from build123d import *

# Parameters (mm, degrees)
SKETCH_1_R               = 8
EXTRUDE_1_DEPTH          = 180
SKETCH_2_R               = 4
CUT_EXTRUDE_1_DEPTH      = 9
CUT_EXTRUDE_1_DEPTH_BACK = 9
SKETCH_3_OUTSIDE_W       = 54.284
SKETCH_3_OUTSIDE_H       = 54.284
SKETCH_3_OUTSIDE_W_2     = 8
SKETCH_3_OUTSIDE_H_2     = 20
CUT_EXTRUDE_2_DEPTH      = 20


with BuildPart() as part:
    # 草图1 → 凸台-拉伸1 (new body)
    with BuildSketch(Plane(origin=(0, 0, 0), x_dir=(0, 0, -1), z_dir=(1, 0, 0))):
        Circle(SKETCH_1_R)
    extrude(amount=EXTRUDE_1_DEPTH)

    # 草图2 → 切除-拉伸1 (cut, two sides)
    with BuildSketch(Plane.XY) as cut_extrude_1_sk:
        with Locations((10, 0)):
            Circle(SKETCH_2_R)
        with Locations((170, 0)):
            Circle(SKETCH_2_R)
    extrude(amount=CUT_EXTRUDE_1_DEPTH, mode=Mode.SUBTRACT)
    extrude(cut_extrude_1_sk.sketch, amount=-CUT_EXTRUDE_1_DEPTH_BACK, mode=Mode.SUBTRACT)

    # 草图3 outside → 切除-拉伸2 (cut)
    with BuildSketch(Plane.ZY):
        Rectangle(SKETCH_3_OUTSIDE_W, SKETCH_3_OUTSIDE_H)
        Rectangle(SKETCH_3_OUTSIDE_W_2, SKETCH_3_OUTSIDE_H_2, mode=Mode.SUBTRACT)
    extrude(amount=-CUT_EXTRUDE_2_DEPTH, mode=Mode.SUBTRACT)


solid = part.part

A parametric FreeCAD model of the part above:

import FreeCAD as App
import Part
import Sketcher
from FreeCAD import Vector

doc = App.newDocument("Part")
params = doc.addObject("Spreadsheet::Sheet", "Params")
for row, (alias, value) in enumerate([
    ("sketch1_diameter", "16 mm"),
    ("pad1_length", "180 mm"),
    ("sketch2_diameter", "8 mm"),
    ("sketch3_width", "20 mm"),
    ("sketch3_height", "8 mm"),
    ("pocket2_length", "20 mm"),
], start=1):
    params.set(f"A{row}", alias)
    params.set(f"B{row}", "=" + value)
    params.setAlias(f"B{row}", alias)

body = doc.addObject("PartDesign::Body", "Body")

sketch1 = doc.addObject("Sketcher::SketchObject", "Sketch")
body.addObject(sketch1)
sketch1.AttachmentSupport = (doc.YZ_Plane, [""])
sketch1.MapMode = "FlatFace"
sketch1.addGeometry(Part.Circle(Vector(0, 0, 0), Vector(0, 0, 1), 8), False)
sketch1.addConstraint([
    Sketcher.Constraint("Coincident", 0, 3, -1, 1),
    Sketcher.Constraint("Diameter", 0, 16.0),
])
sketch1.setExpression("Constraints[1]", "Params.sketch1_diameter")
pad1 = doc.addObject("PartDesign::Pad", "Pad")
body.addObject(pad1)
pad1.Profile = sketch1
pad1.setExpression("Length", "Params.pad1_length")

sketch2 = doc.addObject("Sketcher::SketchObject", "Sketch001")
body.addObject(sketch2)
sketch2.AttachmentSupport = (doc.XY_Plane, [""])
sketch2.MapMode = "FlatFace"
sketch2.addGeometry([
    Part.Circle(Vector(10, 0, 0), Vector(0, 0, 1), 4),
    Part.Circle(Vector(170, 0, 0), Vector(0, 0, 1), 4),
], False)
sketch2.addConstraint([
    Sketcher.Constraint("Equal", 0, 1),
    Sketcher.Constraint("PointOnObject", 0, 3, -1),
    Sketcher.Constraint("PointOnObject", 1, 3, -1),
    Sketcher.Constraint("Diameter", 0, 8.0),
    Sketcher.Constraint("DistanceX", -1, 1, 0, 3, 10.0),
    Sketcher.Constraint("DistanceX", -1, 1, 1, 3, 170.0),
])
sketch2.setExpression("Constraints[3]", "Params.sketch2_diameter")
pocket1 = doc.addObject("PartDesign::Pocket", "Pocket")
body.addObject(pocket1)
pocket1.Profile = sketch2
pocket1.Type = "ThroughAll"
pocket1.Midplane = True

sketch3 = doc.addObject("Sketcher::SketchObject", "Sketch002")
body.addObject(sketch3)
sketch3.AttachmentSupport = (doc.YZ_Plane, [""])
sketch3.MapMode = "FlatFace"
sketch3.addGeometry([
    Part.LineSegment(Vector(27, -27, 0), Vector(-27, -27, 0)),
    Part.LineSegment(Vector(-27, -27, 0), Vector(-27, 27, 0)),
    Part.LineSegment(Vector(-27, 27, 0), Vector(27, 27, 0)),
    Part.LineSegment(Vector(27, 27, 0), Vector(27, -27, 0)),
    Part.LineSegment(Vector(-10, 4, 0), Vector(-10, -4, 0)),
    Part.LineSegment(Vector(-10, -4, 0), Vector(10, -4, 0)),
    Part.LineSegment(Vector(10, -4, 0), Vector(10, 4, 0)),
    Part.LineSegment(Vector(10, 4, 0), Vector(-10, 4, 0)),
], False)
sketch3.addConstraint([
    Sketcher.Constraint("Coincident", 0, 2, 1, 1),
    Sketcher.Constraint("Coincident", 1, 2, 2, 1),
    Sketcher.Constraint("Coincident", 2, 2, 3, 1),
    Sketcher.Constraint("Coincident", 3, 2, 0, 1),
    Sketcher.Constraint("Coincident", 4, 2, 5, 1),
    Sketcher.Constraint("Coincident", 5, 2, 6, 1),
    Sketcher.Constraint("Coincident", 6, 2, 7, 1),
    Sketcher.Constraint("Coincident", 7, 2, 4, 1),
    Sketcher.Constraint("Horizontal", 0),
    Sketcher.Constraint("Vertical", 1),
    Sketcher.Constraint("Horizontal", 2),
    Sketcher.Constraint("Vertical", 3),
    Sketcher.Constraint("Vertical", 4),
    Sketcher.Constraint("Horizontal", 5),
    Sketcher.Constraint("Vertical", 6),
    Sketcher.Constraint("Horizontal", 7),
    Sketcher.Constraint("Symmetric", 0, 2, 2, 2, -1, 1),
    Sketcher.Constraint("Symmetric", 4, 2, 6, 2, -1, 1),
    Sketcher.Constraint("Equal", 2, 1),
    Sketcher.Constraint("DistanceX", 5, 1, 5, 2, 20.0),
    Sketcher.Constraint("DistanceY", 4, 2, 4, 1, 8.0),
    Sketcher.Constraint("DistanceX", 0, 2, 0, 1, 54.284),
])
sketch3.setExpression("Constraints[19]", "Params.sketch3_width")
sketch3.setExpression("Constraints[20]", "Params.sketch3_height")
pocket2 = doc.addObject("PartDesign::Pocket", "Pocket001")
body.addObject(pocket2)
pocket2.Profile = sketch3
pocket2.setExpression("Length", "Params.pocket2_length")
pocket2.Reversed = True

doc.recompute()
